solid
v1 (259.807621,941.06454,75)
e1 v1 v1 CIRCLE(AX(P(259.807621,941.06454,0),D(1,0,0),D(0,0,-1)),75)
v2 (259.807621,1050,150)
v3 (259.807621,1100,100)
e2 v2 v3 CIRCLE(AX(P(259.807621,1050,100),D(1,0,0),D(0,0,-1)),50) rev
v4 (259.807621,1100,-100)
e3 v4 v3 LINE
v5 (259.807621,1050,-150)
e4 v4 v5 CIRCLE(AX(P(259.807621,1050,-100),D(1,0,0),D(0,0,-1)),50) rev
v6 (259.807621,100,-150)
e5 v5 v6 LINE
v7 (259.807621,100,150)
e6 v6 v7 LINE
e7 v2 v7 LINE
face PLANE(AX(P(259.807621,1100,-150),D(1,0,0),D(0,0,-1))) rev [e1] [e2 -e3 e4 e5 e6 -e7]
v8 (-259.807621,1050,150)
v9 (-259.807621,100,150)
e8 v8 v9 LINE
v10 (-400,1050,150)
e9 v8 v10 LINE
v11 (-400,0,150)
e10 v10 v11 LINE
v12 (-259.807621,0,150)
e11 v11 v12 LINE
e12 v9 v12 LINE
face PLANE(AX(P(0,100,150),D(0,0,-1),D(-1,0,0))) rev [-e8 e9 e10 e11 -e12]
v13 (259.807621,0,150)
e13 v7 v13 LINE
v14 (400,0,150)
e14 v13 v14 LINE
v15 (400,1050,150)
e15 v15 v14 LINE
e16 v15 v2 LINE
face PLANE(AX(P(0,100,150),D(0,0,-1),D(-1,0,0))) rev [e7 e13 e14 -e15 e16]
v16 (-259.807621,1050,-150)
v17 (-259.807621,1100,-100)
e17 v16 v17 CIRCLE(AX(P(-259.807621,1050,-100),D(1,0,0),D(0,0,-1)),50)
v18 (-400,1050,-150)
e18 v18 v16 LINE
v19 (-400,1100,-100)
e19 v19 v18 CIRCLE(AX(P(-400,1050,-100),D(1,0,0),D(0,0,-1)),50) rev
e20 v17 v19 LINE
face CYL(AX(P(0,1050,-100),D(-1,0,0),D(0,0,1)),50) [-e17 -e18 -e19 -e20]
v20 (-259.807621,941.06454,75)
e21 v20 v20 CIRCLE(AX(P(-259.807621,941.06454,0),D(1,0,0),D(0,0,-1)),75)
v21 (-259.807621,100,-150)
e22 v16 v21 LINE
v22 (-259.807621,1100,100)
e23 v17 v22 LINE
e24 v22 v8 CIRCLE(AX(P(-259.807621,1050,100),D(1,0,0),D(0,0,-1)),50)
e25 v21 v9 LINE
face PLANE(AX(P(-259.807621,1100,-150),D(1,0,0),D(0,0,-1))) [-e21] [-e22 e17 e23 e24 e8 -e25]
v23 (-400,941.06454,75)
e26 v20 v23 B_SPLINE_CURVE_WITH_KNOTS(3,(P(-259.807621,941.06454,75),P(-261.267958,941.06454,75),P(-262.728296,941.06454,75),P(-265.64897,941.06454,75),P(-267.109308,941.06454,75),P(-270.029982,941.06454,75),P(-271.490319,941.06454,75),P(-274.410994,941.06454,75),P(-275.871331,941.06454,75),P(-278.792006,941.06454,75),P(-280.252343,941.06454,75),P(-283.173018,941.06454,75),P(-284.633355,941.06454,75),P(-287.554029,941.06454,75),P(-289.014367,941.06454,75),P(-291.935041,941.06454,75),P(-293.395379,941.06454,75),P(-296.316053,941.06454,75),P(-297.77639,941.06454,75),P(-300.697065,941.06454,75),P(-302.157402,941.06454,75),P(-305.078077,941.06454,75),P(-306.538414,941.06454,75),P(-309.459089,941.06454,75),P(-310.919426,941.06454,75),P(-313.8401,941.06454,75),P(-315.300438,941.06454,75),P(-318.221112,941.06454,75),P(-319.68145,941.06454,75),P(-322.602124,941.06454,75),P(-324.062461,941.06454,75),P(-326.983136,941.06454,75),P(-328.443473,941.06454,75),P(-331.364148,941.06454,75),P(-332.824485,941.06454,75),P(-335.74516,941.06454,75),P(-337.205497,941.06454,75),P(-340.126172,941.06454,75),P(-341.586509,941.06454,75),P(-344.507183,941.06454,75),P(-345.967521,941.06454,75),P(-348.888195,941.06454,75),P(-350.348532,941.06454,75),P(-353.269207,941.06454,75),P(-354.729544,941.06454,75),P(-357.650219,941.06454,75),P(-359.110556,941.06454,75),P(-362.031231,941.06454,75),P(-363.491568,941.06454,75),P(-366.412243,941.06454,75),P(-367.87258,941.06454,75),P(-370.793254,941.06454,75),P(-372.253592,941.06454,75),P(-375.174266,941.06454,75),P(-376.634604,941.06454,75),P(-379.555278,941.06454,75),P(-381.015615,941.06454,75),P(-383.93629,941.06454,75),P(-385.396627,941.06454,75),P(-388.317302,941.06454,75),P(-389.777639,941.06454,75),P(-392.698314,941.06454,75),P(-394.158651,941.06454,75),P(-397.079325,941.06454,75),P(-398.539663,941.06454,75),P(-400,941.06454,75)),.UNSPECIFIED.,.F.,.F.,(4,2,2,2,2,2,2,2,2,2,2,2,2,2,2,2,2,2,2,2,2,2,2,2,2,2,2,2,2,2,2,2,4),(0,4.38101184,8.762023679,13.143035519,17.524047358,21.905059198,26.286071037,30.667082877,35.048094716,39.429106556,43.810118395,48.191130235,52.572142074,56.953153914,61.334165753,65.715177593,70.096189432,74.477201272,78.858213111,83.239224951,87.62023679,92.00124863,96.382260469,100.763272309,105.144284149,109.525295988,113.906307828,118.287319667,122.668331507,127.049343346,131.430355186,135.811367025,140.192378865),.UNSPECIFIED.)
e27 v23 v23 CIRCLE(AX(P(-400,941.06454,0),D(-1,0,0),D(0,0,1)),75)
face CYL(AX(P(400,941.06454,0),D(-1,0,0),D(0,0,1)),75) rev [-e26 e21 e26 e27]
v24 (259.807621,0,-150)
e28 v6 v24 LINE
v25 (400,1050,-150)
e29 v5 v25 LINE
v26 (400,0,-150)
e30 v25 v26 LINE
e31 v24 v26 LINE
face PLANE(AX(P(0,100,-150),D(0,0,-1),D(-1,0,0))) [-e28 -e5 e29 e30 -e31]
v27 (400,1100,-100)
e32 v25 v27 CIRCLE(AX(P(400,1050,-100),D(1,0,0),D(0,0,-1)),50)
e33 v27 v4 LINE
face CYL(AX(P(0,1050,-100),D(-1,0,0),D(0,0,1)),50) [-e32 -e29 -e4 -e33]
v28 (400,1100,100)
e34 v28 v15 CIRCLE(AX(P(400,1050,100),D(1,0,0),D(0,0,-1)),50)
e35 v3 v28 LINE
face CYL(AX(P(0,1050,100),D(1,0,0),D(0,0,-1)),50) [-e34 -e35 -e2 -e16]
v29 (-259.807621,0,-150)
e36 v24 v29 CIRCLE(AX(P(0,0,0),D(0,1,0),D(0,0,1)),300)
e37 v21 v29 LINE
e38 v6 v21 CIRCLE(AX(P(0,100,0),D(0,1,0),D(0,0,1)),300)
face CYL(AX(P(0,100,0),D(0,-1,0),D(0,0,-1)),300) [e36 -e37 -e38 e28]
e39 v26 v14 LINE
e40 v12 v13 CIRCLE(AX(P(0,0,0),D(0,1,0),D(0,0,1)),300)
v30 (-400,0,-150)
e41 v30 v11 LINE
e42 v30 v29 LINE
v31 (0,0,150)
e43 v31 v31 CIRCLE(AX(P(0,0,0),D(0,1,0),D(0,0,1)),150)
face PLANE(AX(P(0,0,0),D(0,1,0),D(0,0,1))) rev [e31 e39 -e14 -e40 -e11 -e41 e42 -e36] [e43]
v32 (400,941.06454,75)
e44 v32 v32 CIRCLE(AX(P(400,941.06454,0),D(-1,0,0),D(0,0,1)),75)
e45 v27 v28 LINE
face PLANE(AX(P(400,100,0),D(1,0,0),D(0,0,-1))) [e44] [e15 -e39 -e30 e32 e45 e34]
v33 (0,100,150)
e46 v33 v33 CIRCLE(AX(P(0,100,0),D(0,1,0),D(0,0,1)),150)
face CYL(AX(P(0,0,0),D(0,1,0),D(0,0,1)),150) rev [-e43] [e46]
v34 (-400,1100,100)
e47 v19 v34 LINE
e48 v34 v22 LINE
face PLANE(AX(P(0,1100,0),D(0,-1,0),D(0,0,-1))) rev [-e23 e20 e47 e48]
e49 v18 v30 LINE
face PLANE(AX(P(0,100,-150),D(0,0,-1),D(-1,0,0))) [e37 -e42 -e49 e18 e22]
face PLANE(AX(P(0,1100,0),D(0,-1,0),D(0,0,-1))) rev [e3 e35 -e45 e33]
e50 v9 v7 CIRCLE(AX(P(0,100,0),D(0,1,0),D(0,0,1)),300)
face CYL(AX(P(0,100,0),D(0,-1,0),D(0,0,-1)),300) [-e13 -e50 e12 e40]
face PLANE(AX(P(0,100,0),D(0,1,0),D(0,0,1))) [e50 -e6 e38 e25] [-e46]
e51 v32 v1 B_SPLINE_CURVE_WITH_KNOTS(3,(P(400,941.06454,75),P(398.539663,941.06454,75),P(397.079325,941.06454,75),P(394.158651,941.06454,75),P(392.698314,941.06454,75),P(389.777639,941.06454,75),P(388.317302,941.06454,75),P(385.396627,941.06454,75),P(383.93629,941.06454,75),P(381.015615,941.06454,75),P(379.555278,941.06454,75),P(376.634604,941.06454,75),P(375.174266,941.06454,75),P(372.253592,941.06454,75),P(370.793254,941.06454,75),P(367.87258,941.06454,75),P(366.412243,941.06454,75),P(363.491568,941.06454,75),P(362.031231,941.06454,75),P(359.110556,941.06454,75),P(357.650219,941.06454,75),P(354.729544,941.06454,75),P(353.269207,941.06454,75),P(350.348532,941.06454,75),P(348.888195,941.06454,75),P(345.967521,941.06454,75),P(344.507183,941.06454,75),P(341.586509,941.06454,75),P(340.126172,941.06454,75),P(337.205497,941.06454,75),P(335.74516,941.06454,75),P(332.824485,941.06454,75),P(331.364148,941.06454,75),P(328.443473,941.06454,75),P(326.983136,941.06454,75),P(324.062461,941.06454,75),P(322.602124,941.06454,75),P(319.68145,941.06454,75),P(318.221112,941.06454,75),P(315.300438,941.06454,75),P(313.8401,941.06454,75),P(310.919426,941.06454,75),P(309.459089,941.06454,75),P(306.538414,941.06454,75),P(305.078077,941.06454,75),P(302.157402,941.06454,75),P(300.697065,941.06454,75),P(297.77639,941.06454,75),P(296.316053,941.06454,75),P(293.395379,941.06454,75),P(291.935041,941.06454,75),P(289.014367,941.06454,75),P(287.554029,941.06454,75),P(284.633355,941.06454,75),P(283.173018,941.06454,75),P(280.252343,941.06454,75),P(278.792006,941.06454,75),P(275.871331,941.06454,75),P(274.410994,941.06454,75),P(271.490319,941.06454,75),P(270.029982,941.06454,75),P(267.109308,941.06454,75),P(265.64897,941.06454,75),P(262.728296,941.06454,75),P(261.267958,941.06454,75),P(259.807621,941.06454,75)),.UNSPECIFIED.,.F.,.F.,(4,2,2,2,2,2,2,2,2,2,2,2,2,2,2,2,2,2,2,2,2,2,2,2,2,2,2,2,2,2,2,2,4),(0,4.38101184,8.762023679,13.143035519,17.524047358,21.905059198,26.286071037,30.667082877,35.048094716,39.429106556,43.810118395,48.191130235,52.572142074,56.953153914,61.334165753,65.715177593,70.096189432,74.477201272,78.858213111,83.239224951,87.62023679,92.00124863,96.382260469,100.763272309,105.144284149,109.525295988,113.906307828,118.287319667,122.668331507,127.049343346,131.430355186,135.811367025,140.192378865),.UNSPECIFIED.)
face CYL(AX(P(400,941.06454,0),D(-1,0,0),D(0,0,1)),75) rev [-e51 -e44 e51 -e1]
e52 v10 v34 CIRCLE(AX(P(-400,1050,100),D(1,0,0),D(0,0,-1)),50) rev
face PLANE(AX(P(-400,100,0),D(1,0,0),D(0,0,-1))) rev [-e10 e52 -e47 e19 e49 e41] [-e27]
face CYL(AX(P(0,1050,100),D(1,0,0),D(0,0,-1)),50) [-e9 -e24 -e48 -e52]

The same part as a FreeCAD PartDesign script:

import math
import FreeCAD as App
import Part
import Sketcher
from FreeCAD import Vector


def edges_at(feature, points):
    """Names of the edges that pass closest to the given points."""
    edges = feature.Shape.Edges
    near = lambda p: min(range(len(edges)), key=lambda i: edges[i].distToShape(Part.Vertex(*p))[0])
    return sorted({f"Edge{near(p) + 1}" for p in points})

doc = App.newDocument("Part")
body = doc.addObject("PartDesign::Body", "Body")

sketch1 = body.newObject("Sketcher::SketchObject", "Sketch")
sketch1.AttachmentSupport = (doc.getObject("XZ_Plane"), [""])
sketch1.MapMode = "FlatFace"
sketch1.addGeometry(Part.ArcOfCircle(Part.Circle(Vector(0, 0, 0), Vector(0, 0, 1), 300), math.radians(-150), math.radians(-30)), False)
sketch1.addGeometry(Part.LineSegment(Vector(-260, -150, 0), Vector(-400, -150, 0)), False)
sketch1.addGeometry(Part.LineSegment(Vector(-400, -150, 0), Vector(-400, 150, 0)), False)
sketch1.addGeometry(Part.LineSegment(Vector(-400, 150, 0), Vector(-260, 150, 0)), False)
sketch1.addGeometry(Part.ArcOfCircle(Part.Circle(Vector(0, 0, 0), Vector(0, 0, 1), 300), math.radians(30), math.radians(150)), False)
sketch1.addGeometry(Part.LineSegment(Vector(260, 150, 0), Vector(400, 150, 0)), False)
sketch1.addGeometry(Part.LineSegment(Vector(400, 150, 0), Vector(400, -150, 0)), False)
sketch1.addGeometry(Part.LineSegment(Vector(400, -150, 0), Vector(260, -150, 0)), False)
sketch1.addConstraint(Sketcher.Constraint("Coincident", 0, 1, 1, 1))
sketch1.addConstraint(Sketcher.Constraint("Coincident", 1, 2, 2, 1))
sketch1.addConstraint(Sketcher.Constraint("Coincident", 2, 2, 3, 1))
sketch1.addConstraint(Sketcher.Constraint("Coincident", 3, 2, 4, 2))
sketch1.addConstraint(Sketcher.Constraint("Coincident", 4, 1, 5, 1))
sketch1.addConstraint(Sketcher.Constraint("Coincident", 5, 2, 6, 1))
sketch1.addConstraint(Sketcher.Constraint("Coincident", 6, 2, 7, 1))
sketch1.addConstraint(Sketcher.Constraint("Coincident", 7, 2, 0, 2))
sketch1.addConstraint(Sketcher.Constraint("Horizontal", 1))
sketch1.addConstraint(Sketcher.Constraint("Vertical", 2))
sketch1.addConstraint(Sketcher.Constraint("Horizontal", 3))
sketch1.addConstraint(Sketcher.Constraint("Horizontal", 5))
sketch1.addConstraint(Sketcher.Constraint("Vertical", 6))
sketch1.addConstraint(Sketcher.Constraint("Horizontal", 7))
sketch1.addConstraint(Sketcher.Constraint("Coincident", 0, 3, -1, 1))
sketch1.addConstraint(Sketcher.Constraint("Coincident", 4, 3, -1, 1))
sketch1.addConstraint(Sketcher.Constraint("Equal", 0, 4))
sketch1.addConstraint(Sketcher.Constraint("Symmetric", 1, 2, 5, 2, -1, 1))
sketch1.addConstraint(Sketcher.Constraint("Horizontal", 3, 2, 4, 1))
sketch1.addConstraint(Sketcher.Constraint("Horizontal", 1, 2, 6, 2))
sketch1.addConstraint(Sketcher.Constraint("Radius", 0, 300.0))
sketch1.addConstraint(Sketcher.Constraint("DistanceY", 2, 1, 2, 2, 300.0))
sketch1.addConstraint(Sketcher.Constraint("DistanceX", 1, 2, -1, 1, 400.0))
pad1 = body.newObject("PartDesign::Pad", "Pad")
pad1.Profile = sketch1
pad1.Length = 100
pad1.Reversed = True

sketch2 = body.newObject("Sketcher::SketchObject", "Sketch001")
sketch2.AttachmentSupport = (doc.getObject("XZ_Plane"), [""])
sketch2.MapMode = "FlatFace"
sketch2.AttachmentOffset = App.Placement(Vector(0, 0, -100), App.Rotation())
sketch2.addGeometry(Part.LineSegment(Vector(-400, -150, 0), Vector(-400, 150, 0)), False)
sketch2.addGeometry(Part.LineSegment(Vector(-400, 150, 0), Vector(-260, 150, 0)), False)
sketch2.addGeometry(Part.LineSegment(Vector(-260, 150, 0), Vector(-260, -150, 0)), False)
sketch2.addGeometry(Part.LineSegment(Vector(-260, -150, 0), Vector(-400, -150, 0)), False)
sketch2.addGeometry(Part.LineSegment(Vector(260, -150, 0), Vector(260, 150, 0)), False)
sketch2.addGeometry(Part.LineSegment(Vector(260, 150, 0), Vector(400, 150, 0)), False)
sketch2.addGeometry(Part.LineSegment(Vector(400, 150, 0), Vector(400, -150, 0)), False)
sketch2.addGeometry(Part.LineSegment(Vector(400, -150, 0), Vector(260, -150, 0)), False)
sketch2.addConstraint(Sketcher.Constraint("Coincident", 0, 2, 1, 1))
sketch2.addConstraint(Sketcher.Constraint("Coincident", 1, 2, 2, 1))
sketch2.addConstraint(Sketcher.Constraint("Coincident", 2, 2, 3, 1))
sketch2.addConstraint(Sketcher.Constraint("Coincident", 3, 2, 0, 1))
sketch2.addConstraint(Sketcher.Constraint("Coincident", 4, 2, 5, 1))
sketch2.addConstraint(Sketcher.Constraint("Coincident", 5, 2, 6, 1))
sketch2.addConstraint(Sketcher.Constraint("Coincident", 6, 2, 7, 1))
sketch2.addConstraint(Sketcher.Constraint("Coincident", 7, 2, 4, 1))
sketch2.addConstraint(Sketcher.Constraint("Vertical", 0))
sketch2.addConstraint(Sketcher.Constraint("Horizontal", 1))
sketch2.addConstraint(Sketcher.Constraint("Vertical", 2))
sketch2.addConstraint(Sketcher.Constraint("Horizontal", 3))
sketch2.addConstraint(Sketcher.Constraint("Vertical", 4))
sketch2.addConstraint(Sketcher.Constraint("Horizontal", 5))
sketch2.addConstraint(Sketcher.Constraint("Vertical", 6))
sketch2.addConstraint(Sketcher.Constraint("Horizontal", 7))
sketch2.addConstraint(Sketcher.Constraint("Symmetric", 2, 2, 4, 2, -1, 1))
sketch2.addConstraint(Sketcher.Constraint("Symmetric", 0, 2, 6, 2, -1, 1))
sketch2.addConstraint(Sketcher.Constraint("Horizontal", 1, 2, 4, 2))
sketch2.addConstraint(Sketcher.Constraint("DistanceY", 0, 1, 0, 2, 300.0))
sketch2.addConstraint(Sketcher.Constraint("DistanceX", 0, 2, -1, 1, 400.0))
sketch2.addConstraint(Sketcher.Constraint("DistanceX", 1, 1, 1, 2, 140.192379))
pad2 = body.newObject("PartDesign::Pad", "Pad001")
pad2.Profile = sketch2
pad2.Length = 1000
pad2.Reversed = True

sketch3 = body.newObject("Sketcher::SketchObject", "Sketch002")
sketch3.AttachmentSupport = (doc.getObject("XZ_Plane"), [""])
sketch3.MapMode = "FlatFace"
sketch3.AttachmentOffset = App.Placement(Vector(0, 0, -100), App.Rotation())
sketch3.addGeometry(Part.Circle(Vector(0, 0, 0), Vector(0, 0, 1), 150), False)
sketch3.addConstraint(Sketcher.Constraint("Coincident", 0, 3, -1, 1))
sketch3.addConstraint(Sketcher.Constraint("Diameter", 0, 300.0))
pocket1 = body.newObject("PartDesign::Pocket", "Pocket")
pocket1.Profile = sketch3
pocket1.Length = 100
pocket1.Reversed = True
doc.recompute()

fillet = body.newObject("PartDesign::Fillet", "Fillet")
fillet.Base = (pocket1, edges_at(pocket1, [
    (-329.904, 1100, -150),
    (-329.904, 1100, 150),
    (329.904, 1100, -150),
    (329.904, 1100, 150),
]))
fillet.Radius = 50

sketch4 = body.newObject("Sketcher::SketchObject", "Sketch003")
sketch4.AttachmentSupport = (doc.getObject("YZ_Plane"), [""])
sketch4.MapMode = "FlatFace"
sketch4.AttachmentOffset = App.Placement(Vector(0, 0, 400), App.Rotation())
sketch4.addGeometry(Part.Circle(Vector(941, 0, 0), Vector(0, 0, 1), 75), False)
sketch4.addConstraint(Sketcher.Constraint("PointOnObject", 0, 3, -1))
sketch4.addConstraint(Sketcher.Constraint("Diameter", 0, 150.0))
sketch4.addConstraint(Sketcher.Constraint("DistanceX", -1, 1, 0, 3, 941.06454))
pocket2 = body.newObject("PartDesign::Pocket", "Pocket001")
pocket2.Profile = sketch4
pocket2.Length = 800

doc.recompute()
